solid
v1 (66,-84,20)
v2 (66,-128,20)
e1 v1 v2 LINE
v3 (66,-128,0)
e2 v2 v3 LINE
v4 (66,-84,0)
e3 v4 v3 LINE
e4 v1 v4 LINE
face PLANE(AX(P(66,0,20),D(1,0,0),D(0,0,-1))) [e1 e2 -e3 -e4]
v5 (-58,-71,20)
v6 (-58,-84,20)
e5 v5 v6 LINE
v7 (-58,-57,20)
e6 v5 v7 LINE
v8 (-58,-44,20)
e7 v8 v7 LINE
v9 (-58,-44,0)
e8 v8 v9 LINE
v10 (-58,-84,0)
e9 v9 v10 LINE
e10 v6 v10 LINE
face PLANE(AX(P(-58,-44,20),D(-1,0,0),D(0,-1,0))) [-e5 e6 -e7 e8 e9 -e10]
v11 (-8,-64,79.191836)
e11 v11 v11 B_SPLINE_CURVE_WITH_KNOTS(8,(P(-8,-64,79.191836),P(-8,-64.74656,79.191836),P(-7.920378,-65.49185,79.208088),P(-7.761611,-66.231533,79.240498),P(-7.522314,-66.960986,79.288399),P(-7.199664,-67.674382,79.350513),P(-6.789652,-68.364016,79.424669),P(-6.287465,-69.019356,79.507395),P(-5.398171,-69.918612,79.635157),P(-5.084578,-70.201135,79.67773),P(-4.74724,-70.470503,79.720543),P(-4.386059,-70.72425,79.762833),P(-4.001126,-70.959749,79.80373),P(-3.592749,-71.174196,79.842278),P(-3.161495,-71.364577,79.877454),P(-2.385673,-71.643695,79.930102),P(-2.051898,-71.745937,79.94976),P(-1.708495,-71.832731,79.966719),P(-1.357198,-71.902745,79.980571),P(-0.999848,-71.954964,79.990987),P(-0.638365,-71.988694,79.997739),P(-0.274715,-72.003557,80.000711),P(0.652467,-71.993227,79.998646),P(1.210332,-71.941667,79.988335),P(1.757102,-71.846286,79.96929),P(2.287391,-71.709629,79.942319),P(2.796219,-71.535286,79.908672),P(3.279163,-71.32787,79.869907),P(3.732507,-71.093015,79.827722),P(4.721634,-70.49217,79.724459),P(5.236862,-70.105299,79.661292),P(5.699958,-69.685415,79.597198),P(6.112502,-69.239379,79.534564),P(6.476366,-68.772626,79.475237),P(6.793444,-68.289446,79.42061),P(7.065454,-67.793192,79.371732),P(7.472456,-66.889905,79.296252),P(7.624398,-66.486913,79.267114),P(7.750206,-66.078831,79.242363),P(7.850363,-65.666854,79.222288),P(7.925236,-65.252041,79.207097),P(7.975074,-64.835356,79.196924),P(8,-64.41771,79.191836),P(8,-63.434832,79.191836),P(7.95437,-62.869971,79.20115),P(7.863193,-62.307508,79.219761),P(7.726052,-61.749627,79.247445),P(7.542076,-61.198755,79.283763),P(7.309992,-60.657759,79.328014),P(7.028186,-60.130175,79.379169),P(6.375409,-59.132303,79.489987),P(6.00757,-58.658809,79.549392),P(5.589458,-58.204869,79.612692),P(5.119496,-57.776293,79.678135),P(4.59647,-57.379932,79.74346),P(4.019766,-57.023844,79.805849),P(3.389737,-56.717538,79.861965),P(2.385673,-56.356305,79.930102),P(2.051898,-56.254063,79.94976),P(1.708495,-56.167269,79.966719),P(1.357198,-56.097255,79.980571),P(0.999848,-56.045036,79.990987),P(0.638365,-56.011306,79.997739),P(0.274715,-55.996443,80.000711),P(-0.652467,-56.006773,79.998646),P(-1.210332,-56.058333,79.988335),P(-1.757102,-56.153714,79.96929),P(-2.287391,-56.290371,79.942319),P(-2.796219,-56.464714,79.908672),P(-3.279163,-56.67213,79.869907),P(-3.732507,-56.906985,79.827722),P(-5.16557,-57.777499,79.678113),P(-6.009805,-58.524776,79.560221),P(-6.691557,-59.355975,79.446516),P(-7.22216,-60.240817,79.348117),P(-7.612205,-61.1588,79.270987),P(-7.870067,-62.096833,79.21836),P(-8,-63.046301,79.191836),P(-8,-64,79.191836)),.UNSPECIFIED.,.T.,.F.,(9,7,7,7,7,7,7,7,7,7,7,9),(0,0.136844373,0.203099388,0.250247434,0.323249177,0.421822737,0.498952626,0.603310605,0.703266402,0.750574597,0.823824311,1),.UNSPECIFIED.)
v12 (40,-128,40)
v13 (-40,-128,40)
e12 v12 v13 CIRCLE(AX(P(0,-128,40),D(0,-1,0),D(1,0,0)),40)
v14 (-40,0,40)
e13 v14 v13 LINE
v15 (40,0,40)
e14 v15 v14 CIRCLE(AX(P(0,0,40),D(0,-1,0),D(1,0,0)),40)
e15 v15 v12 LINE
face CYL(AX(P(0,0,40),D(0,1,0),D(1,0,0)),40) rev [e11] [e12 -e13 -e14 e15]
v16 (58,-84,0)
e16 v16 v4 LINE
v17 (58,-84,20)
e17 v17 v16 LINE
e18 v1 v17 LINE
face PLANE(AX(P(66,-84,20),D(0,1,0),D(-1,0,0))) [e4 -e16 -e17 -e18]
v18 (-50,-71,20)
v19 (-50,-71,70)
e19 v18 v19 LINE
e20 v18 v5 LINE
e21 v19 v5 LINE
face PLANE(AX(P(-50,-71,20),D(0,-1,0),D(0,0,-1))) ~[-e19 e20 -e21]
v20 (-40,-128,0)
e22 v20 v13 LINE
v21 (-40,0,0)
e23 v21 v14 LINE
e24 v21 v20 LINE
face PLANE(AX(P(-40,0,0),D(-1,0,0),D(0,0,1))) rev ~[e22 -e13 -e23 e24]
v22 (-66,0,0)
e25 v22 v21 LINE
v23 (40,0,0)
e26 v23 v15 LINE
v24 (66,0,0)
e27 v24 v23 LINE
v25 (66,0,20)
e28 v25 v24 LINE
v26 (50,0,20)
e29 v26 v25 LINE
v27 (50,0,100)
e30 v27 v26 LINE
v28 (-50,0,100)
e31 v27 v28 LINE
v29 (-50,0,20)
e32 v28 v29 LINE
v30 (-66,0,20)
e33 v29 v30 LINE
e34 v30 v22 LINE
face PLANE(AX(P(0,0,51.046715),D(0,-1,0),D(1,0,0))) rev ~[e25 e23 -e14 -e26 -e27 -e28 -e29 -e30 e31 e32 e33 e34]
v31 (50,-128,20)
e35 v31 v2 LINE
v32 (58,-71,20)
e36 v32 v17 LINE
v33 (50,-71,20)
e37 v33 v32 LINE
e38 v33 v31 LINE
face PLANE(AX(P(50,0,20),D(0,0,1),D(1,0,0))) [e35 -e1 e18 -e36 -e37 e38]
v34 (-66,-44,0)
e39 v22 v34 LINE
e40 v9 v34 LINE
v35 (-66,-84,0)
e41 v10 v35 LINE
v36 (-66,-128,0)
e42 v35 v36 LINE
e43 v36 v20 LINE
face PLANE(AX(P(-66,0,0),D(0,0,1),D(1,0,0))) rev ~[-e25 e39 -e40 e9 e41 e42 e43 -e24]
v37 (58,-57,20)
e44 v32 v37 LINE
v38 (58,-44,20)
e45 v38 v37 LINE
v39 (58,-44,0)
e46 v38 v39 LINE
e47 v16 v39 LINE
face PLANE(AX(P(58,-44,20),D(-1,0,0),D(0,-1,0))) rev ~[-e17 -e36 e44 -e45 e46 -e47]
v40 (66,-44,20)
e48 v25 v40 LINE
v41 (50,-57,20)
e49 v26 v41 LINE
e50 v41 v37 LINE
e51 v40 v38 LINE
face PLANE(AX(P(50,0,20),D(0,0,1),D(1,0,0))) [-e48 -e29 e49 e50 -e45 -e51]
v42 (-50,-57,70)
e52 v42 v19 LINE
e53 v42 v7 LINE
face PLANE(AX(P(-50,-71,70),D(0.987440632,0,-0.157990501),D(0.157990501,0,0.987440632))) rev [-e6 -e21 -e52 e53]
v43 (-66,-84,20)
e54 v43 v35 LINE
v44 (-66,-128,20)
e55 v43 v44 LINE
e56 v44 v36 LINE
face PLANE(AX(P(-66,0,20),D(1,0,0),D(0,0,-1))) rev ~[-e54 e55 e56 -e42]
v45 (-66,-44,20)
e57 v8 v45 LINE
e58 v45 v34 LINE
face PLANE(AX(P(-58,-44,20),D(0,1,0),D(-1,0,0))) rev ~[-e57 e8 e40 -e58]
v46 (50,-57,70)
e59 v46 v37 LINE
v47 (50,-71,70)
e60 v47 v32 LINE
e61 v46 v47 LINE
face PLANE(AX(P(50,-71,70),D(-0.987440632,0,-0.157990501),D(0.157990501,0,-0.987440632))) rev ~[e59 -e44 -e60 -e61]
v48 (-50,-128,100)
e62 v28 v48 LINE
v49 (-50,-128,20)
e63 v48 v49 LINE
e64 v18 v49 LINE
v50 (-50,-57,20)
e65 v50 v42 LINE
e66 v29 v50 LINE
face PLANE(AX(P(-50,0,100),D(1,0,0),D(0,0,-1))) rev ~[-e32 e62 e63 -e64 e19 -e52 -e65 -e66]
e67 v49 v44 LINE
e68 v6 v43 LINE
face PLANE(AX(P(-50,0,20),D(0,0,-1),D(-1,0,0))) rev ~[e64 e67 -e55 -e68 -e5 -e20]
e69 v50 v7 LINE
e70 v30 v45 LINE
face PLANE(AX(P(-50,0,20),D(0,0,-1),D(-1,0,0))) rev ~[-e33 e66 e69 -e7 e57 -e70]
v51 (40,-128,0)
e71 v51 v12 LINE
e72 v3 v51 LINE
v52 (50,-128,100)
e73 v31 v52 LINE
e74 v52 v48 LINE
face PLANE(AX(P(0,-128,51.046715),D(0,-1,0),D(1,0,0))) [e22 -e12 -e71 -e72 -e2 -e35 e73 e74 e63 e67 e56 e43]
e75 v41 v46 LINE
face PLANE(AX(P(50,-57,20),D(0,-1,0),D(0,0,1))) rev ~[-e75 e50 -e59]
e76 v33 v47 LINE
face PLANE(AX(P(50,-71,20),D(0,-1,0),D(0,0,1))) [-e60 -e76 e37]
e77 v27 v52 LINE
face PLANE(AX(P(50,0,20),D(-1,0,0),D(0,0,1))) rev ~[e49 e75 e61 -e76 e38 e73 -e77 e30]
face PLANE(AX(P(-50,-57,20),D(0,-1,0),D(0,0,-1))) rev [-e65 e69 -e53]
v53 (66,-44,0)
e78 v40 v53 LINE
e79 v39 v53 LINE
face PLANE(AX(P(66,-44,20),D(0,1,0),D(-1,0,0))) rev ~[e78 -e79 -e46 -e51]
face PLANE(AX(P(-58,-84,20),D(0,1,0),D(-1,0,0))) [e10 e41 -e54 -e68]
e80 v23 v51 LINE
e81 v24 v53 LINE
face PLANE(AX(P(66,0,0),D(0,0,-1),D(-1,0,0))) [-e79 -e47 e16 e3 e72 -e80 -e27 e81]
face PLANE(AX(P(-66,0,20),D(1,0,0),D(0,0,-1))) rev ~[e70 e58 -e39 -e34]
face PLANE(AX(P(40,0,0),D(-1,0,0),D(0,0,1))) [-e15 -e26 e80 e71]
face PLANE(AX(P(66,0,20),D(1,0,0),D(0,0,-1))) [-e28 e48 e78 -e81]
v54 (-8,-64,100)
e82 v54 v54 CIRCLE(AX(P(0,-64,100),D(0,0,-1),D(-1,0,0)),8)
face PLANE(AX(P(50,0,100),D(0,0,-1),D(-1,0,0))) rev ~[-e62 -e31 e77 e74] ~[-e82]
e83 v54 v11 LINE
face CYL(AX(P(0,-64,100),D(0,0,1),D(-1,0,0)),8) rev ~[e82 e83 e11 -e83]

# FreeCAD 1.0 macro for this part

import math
import FreeCAD as App
import Part
import Sketcher
Q = App.Units.Quantity


def add_polygon(sketch, points):
    """Adds a closed chain of lines whose ends are joined by coincident constraints."""
    first, n = sketch.GeometryCount, len(points)
    for a, b in zip(points, points[1:] + points[:1]):
        sketch.addGeometry(Part.LineSegment(App.Vector(*a, 0), App.Vector(*b, 0)), False)
    for i in range(n):
        sketch.addConstraint(Sketcher.Constraint("Coincident", first + i, 2, first + (i + 1) % n, 1))

doc = App.newDocument("Part")
body = doc.addObject("PartDesign::Body", "Body")

# Sketch on XZ plane
sketch1 = body.newObject("Sketcher::SketchObject", "Sketch")
sketch1.AttachmentSupport = (doc.getObject("XZ_Plane"), [""])
sketch1.MapMode = "FlatFace"
sketch1.addGeometry([
    Part.LineSegment(App.Vector(-50, 100, 0), App.Vector(-50, 20, 0)),  # 0
    Part.LineSegment(App.Vector(-50, 20, 0), App.Vector(-66, 20, 0)),  # 1
    Part.LineSegment(App.Vector(-66, 20, 0), App.Vector(-66, 0, 0)),  # 2
    Part.LineSegment(App.Vector(-66, 0, 0), App.Vector(-40, 0, 0)),  # 3
    Part.LineSegment(App.Vector(-40, 0, 0), App.Vector(-40, 40, 0)),  # 4
    Part.ArcOfCircle(Part.Circle(App.Vector(0, 40, 0), App.Vector(0, 0, 1), 40), math.radians(0), math.radians(180)),  # 5
    Part.LineSegment(App.Vector(40, 40, 0), App.Vector(40, 0, 0)),  # 6
    Part.LineSegment(App.Vector(40, 0, 0), App.Vector(66, 0, 0)),  # 7
    Part.LineSegment(App.Vector(66, 0, 0), App.Vector(66, 20, 0)),  # 8
    Part.LineSegment(App.Vector(66, 20, 0), App.Vector(50, 20, 0)),  # 9
    Part.LineSegment(App.Vector(50, 20, 0), App.Vector(50, 100, 0)),  # 10
    Part.LineSegment(App.Vector(50, 100, 0), App.Vector(-50, 100, 0)),  # 11
], False)
sketch1.addConstraint([
    Sketcher.Constraint("Coincident", 0, 2, 1, 1),
    Sketcher.Constraint("Coincident", 1, 2, 2, 1),
    Sketcher.Constraint("Coincident", 2, 2, 3, 1),
    Sketcher.Constraint("Coincident", 3, 2, 4, 1),
    Sketcher.Constraint("Tangent", 4, 2, 5, 2),
    Sketcher.Constraint("Tangent", 5, 1, 6, 1),
    Sketcher.Constraint("Coincident", 6, 2, 7, 1),
    Sketcher.Constraint("Coincident", 7, 2, 8, 1),
    Sketcher.Constraint("Coincident", 8, 2, 9, 1),
    Sketcher.Constraint("Coincident", 9, 2, 10, 1),
    Sketcher.Constraint("Coincident", 10, 2, 11, 1),
    Sketcher.Constraint("Coincident", 11, 2, 0, 1),
    Sketcher.Constraint("Vertical", 0),
    Sketcher.Constraint("Horizontal", 1),
    Sketcher.Constraint("Vertical", 2),
    Sketcher.Constraint("Horizontal", 3),
    Sketcher.Constraint("Vertical", 4),
    Sketcher.Constraint("Vertical", 6),
    Sketcher.Constraint("Horizontal", 7),
    Sketcher.Constraint("Vertical", 8),
    Sketcher.Constraint("Horizontal", 9),
    Sketcher.Constraint("Vertical", 10),
    Sketcher.Constraint("Horizontal", 11),
    Sketcher.Constraint("Symmetric", 3, 2, 6, 2, -1, 1),
    Sketcher.Constraint("Symmetric", 2, 2, 7, 2, -2),
    Sketcher.Constraint("Symmetric", 0, 2, 9, 2, -2),
    Sketcher.Constraint("Radius", 5, Q("40 mm")),
    Sketcher.Constraint("DistanceX", 1, 2, 1, 1, Q("16 mm")),
    Sketcher.Constraint("DistanceX", 3, 1, 3, 2, Q("26 mm")),
    Sketcher.Constraint("DistanceY", 0, 2, 0, 1, Q("80 mm")),
    Sketcher.Constraint("DistanceY", 2, 2, 2, 1, Q("20 mm")),
    Sketcher.Constraint("DistanceY", 4, 1, 4, 2, Q("40 mm")),
])
pad1 = body.newObject("PartDesign::Pad", "Pad")
pad1.Profile = sketch1
pad1.Length = 128

# Sketch on XY plane
sketch2 = body.newObject("Sketcher::SketchObject", "Sketch001")
sketch2.AttachmentSupport = (doc.getObject("XY_Plane"), [""])
sketch2.MapMode = "FlatFace"
sketch2.AttachmentOffset = App.Placement(App.Vector(0, 0, 20), App.Rotation())
add_polygon(sketch2, [(66, -84), (66, -44), (58, -44), (58, -84)])  # lines 0-3
add_polygon(sketch2, [(-58, -84), (-58, -44), (-66, -44), (-66, -84)])  # lines 4-7
sketch2.addConstraint([
    Sketcher.Constraint("Vertical", 0),
    Sketcher.Constraint("Horizontal", 1),
    Sketcher.Constraint("Vertical", 2),
    Sketcher.Constraint("Horizontal", 3),
    Sketcher.Constraint("Vertical", 4),
    Sketcher.Constraint("Horizontal", 5),
    Sketcher.Constraint("Vertical", 6),
    Sketcher.Constraint("Horizontal", 7),
    Sketcher.Constraint("Symmetric", 1, 2, 4, 2, -2),
    Sketcher.Constraint("Symmetric", 3, 2, 6, 2, -2),
    Sketcher.Constraint("DistanceX", 1, 2, 1, 1, Q("8 mm")),
    Sketcher.Constraint("DistanceY", 0, 1, 0, 2, Q("40 mm")),
    Sketcher.Constraint("DistanceX", -1, 1, 0, 2, Q("66 mm")),
    Sketcher.Constraint("DistanceY", 0, 2, -1, 1, Q("44 mm")),
])
pocket1 = body.newObject("PartDesign::Pocket", "Pocket")
pocket1.Profile = sketch2
pocket1.Type = "ThroughAll"

# Sketch on YZ plane
sketch3 = body.newObject("Sketcher::SketchObject", "Sketch002")
sketch3.AttachmentSupport = (doc.getObject("YZ_Plane"), [""])
sketch3.MapMode = "FlatFace"
sketch3.AttachmentOffset = App.Placement(App.Vector(0, 0, 50), App.Rotation())
add_polygon(sketch3, [(-71, 20), (-57, 20), (-57, 70), (-71, 70)])  # lines 0-3
sketch3.addConstraint([
    Sketcher.Constraint("Horizontal", 0),
    Sketcher.Constraint("Vertical", 1),
    Sketcher.Constraint("Horizontal", 2),
    Sketcher.Constraint("Vertical", 3),
    Sketcher.Constraint("DistanceX", 0, 1, 0, 2, Q("14 mm")),
    Sketcher.Constraint("DistanceY", 1, 1, 1, 2, Q("50 mm")),
    Sketcher.Constraint("DistanceX", 0, 2, -1, 1, Q("57 mm")),
    Sketcher.Constraint("DistanceY", -1, 1, 0, 2, Q("20 mm")),
])
pad2 = body.newObject("PartDesign::Pad", "Pad001")
pad2.Profile = sketch3
pad2.Length = 8

# Sketch on XY plane
sketch4 = body.newObject("Sketcher::SketchObject", "Sketch003")
sketch4.AttachmentSupport = (doc.getObject("XY_Plane"), [""])
sketch4.MapMode = "FlatFace"
sketch4.AttachmentOffset = App.Placement(App.Vector(0, 0, 100), App.Rotation())
sketch4.addGeometry(Part.Circle(App.Vector(0, -64, 0), App.Vector(0, 0, 1), 8), False)
sketch4.addConstraint([
    Sketcher.Constraint("PointOnObject", 0, 3, -2),
    Sketcher.Constraint("Diameter", 0, Q("16 mm")),
    Sketcher.Constraint("DistanceY", 0, 3, -1, 1, Q("64 mm")),
])
pocket2 = body.newObject("PartDesign::Pocket", "Pocket001")
pocket2.Profile = sketch4
pocket2.Type = "ThroughAll"

# Sketch on XZ plane
sketch5 = body.newObject("Sketcher::SketchObject", "Sketch004")
sketch5.AttachmentSupport = (doc.getObject("XZ_Plane"), [""])
sketch5.MapMode = "FlatFace"
sketch5.AttachmentOffset = App.Placement(App.Vector(0, 0, 71), App.Rotation())
add_polygon(sketch5, [(58, 20), (58, 70), (50, 70)])  # lines 0-2
sketch5.addConstraint([
    Sketcher.Constraint("Vertical", 0),
    Sketcher.Constraint("Horizontal", 1),
    Sketcher.Constraint("DistanceX", 1, 2, 1, 1, Q("8 mm")),
    Sketcher.Constraint("DistanceY", 0, 1, 0, 2, Q("50 mm")),
    Sketcher.Constraint("DistanceX", -1, 1, 0, 2, Q("58 mm")),
    Sketcher.Constraint("DistanceY", -1, 1, 0, 2, Q("70 mm")),
])
pocket3 = body.newObject("PartDesign::Pocket", "Pocket002")
pocket3.Profile = sketch5
pocket3.Type = "ThroughAll"
body2 = doc.addObject("PartDesign::Body", "Body001")
doc.recompute()

body2.BaseFeature = body
doc.recompute()

mirroring = doc.addObject("Part::Mirroring", "Mirroring")
mirroring.Source = body
mirroring.Base = App.Vector(0, 0, 0)
mirroring.Normal = App.Vector(1, 0, 0)
body3 = doc.addObject("PartDesign::Body", "Body002")
body3.BaseFeature = mirroring
boolean = body2.newObject("PartDesign::Boolean", "Boolean")
boolean.Type = "Fuse"
boolean.addObjects([body3])
doc.recompute()
mirroring.Visibility = False

doc.recompute()
